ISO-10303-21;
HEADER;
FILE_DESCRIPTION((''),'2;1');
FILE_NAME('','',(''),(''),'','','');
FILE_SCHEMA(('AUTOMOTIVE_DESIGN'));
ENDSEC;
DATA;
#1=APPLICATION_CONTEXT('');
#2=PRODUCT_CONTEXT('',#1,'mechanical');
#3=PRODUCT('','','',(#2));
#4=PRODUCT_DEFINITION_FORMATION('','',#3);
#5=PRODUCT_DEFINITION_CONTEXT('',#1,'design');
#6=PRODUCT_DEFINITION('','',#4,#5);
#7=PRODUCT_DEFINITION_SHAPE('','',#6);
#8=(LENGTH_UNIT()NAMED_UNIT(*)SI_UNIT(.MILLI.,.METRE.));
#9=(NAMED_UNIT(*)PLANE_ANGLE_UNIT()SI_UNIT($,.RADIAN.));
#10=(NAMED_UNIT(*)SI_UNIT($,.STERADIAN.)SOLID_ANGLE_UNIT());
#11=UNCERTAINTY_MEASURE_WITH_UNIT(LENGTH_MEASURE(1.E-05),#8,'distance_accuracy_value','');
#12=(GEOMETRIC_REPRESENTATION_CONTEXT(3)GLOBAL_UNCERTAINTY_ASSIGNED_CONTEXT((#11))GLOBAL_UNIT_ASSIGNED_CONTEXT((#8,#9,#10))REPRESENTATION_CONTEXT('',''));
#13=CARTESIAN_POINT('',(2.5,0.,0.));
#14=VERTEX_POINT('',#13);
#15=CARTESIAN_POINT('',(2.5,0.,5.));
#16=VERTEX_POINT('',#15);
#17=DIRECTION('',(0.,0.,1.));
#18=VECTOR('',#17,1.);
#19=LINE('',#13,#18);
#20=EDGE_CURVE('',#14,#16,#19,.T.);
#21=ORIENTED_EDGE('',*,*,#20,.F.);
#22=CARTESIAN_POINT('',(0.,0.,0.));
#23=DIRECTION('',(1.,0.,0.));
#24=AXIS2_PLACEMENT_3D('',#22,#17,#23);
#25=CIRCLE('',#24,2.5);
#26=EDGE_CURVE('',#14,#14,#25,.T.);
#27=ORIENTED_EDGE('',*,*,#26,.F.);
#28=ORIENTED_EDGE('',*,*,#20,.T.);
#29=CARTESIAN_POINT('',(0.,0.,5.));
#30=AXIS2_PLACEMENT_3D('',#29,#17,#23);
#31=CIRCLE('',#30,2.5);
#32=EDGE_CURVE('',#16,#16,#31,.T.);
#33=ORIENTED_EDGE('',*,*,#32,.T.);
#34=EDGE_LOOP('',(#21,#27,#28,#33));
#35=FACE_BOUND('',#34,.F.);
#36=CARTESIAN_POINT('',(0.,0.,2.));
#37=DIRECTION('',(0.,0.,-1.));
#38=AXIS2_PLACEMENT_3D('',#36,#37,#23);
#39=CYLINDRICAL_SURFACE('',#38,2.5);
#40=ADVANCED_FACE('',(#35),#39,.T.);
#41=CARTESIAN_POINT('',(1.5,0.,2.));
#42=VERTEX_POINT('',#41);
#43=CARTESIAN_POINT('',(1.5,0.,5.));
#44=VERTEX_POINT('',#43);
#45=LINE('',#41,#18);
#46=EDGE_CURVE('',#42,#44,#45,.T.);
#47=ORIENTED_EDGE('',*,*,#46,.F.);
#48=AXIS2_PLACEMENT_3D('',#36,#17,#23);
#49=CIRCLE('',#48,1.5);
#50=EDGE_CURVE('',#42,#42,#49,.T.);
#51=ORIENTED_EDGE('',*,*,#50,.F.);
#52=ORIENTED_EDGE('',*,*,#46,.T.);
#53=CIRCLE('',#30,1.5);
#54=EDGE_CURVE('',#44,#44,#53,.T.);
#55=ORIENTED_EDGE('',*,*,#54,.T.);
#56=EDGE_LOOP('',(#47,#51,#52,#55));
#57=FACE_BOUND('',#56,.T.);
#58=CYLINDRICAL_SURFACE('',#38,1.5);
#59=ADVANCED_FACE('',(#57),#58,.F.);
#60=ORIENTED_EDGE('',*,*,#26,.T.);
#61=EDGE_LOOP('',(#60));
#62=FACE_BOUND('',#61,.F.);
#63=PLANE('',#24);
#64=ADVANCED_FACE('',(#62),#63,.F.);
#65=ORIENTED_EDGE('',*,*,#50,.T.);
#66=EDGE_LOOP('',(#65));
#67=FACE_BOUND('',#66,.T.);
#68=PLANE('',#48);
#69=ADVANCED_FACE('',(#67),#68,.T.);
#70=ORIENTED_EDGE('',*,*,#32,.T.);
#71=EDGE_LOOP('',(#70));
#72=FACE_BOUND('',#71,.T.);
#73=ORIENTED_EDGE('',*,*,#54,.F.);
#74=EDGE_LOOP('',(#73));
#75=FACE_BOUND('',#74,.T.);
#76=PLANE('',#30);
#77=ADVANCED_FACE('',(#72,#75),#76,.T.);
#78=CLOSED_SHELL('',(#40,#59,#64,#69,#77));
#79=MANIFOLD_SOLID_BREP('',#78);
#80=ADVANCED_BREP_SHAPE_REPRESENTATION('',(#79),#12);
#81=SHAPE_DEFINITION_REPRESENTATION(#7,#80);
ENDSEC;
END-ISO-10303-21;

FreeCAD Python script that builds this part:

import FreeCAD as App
import Part
import Sketcher

V = App.Vector

doc = App.newDocument("Part")
body = doc.addObject("PartDesign::Body", "Body")

# Sketch on XY plane
sketch1 = body.newObject("Sketcher::SketchObject", "Sketch")
sketch1.AttachmentSupport = (doc.getObject("XY_Plane"), [""])
sketch1.MapMode = "FlatFace"
sketch1.addGeometry(Part.Circle(V(0, 0, 0), V(0, 0, 1), 2.5), False)
sketch1.addConstraint([
    Sketcher.Constraint("Coincident", 0, 3, -1, 1),
    Sketcher.Constraint("Diameter", 0, 5.0),
])
pad1 = body.newObject("PartDesign::Pad", "Pad")
pad1.Profile = sketch1
pad1.Length = 2

# Sketch on XY plane
sketch2 = body.newObject("Sketcher::SketchObject", "Sketch001")
sketch2.AttachmentSupport = (doc.getObject("XY_Plane"), [""])
sketch2.MapMode = "FlatFace"
sketch2.AttachmentOffset = App.Placement(V(0, 0, 2), App.Rotation())
sketch2.addGeometry([
    Part.Circle(V(0, 0, 0), V(0, 0, 1), 2.5),
    Part.Circle(V(0, 0, 0), V(0, 0, 1), 1.5),
], False)
sketch2.addConstraint([
    Sketcher.Constraint("Coincident", 0, 3, -1, 1),
    Sketcher.Constraint("Coincident", 1, 3, -1, 1),
    Sketcher.Constraint("Diameter", 0, 5.0),
    Sketcher.Constraint("Diameter", 1, 3.0),
])
pad2 = body.newObject("PartDesign::Pad", "Pad001")
pad2.Profile = sketch2
pad2.Length = 3

doc.recompute()
